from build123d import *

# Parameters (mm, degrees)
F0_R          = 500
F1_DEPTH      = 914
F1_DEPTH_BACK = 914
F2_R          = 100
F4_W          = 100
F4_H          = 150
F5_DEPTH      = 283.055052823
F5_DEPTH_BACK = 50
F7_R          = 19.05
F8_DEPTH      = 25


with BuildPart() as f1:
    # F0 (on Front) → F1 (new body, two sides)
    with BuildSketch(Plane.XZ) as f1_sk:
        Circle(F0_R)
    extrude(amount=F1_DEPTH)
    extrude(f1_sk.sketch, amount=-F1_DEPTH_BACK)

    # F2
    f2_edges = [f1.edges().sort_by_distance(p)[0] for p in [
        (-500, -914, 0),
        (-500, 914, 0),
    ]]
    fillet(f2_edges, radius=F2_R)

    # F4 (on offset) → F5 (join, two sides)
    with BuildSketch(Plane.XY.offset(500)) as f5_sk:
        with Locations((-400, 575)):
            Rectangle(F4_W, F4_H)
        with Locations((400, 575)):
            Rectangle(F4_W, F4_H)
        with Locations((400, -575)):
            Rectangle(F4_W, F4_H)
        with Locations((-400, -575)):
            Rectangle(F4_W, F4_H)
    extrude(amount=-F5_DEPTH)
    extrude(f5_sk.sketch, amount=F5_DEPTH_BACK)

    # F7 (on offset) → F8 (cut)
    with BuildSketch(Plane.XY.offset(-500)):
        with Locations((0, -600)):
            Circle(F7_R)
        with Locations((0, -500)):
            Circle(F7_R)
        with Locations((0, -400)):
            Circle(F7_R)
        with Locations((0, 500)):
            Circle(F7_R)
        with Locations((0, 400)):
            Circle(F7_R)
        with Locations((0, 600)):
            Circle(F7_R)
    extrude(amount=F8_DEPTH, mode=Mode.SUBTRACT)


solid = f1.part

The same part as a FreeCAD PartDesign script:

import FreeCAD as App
import Part
import Sketcher
from FreeCAD import Vector
Q = App.Units.Quantity


def edges_at(feature, points):
    """Names of the edges that pass closest to the given points."""
    edges = feature.Shape.Edges
    near = lambda p: min(range(len(edges)), key=lambda i: edges[i].distToShape(Part.Vertex(*p))[0])
    return sorted({f"Edge{near(p) + 1}" for p in points})


def add_polygon(sketch, points):
    """Adds a closed chain of lines whose ends are joined by coincident constraints."""
    first, n = sketch.GeometryCount, len(points)
    for a, b in zip(points, points[1:] + points[:1]):
        sketch.addGeometry(Part.LineSegment(App.Vector(*a, 0), App.Vector(*b, 0)), False)
    for i in range(n):
        sketch.addConstraint(Sketcher.Constraint("Coincident", first + i, 2, first + (i + 1) % n, 1))

doc = App.newDocument("Part")
body = doc.addObject("PartDesign::Body", "Body")

# Sketch on XZ plane
sketch1 = body.newObject("Sketcher::SketchObject", "Sketch")
sketch1.AttachmentSupport = (doc.getObject("XZ_Plane"), [""])
sketch1.MapMode = "FlatFace"
sketch1.addGeometry(Part.Circle(Vector(0, 0, 0), Vector(0, 0, 1), 500), False)
sketch1.addConstraint([
    Sketcher.Constraint("Coincident", 0, 3, -1, 1),
    Sketcher.Constraint("Diameter", 0, Q("1000 mm")),
])
pad1 = body.newObject("PartDesign::Pad", "Pad")
pad1.Profile = sketch1
pad1.Type = "TwoLengths"
pad1.Length = 914
pad1.Length2 = 914
doc.recompute()

fillet = body.newObject("PartDesign::Fillet", "Fillet")
fillet.Base = (pad1, edges_at(pad1, [(-500, -914, 0), (-500, 914, 0)]))
fillet.Radius = 100

# Sketch on XY plane
sketch2 = body.newObject("Sketcher::SketchObject", "Sketch001")
sketch2.AttachmentSupport = (doc.getObject("XY_Plane"), [""])
sketch2.MapMode = "FlatFace"
sketch2.AttachmentOffset = App.Placement(Vector(0, 0, 500), App.Rotation())
add_polygon(sketch2, [(-450, 650), (-450, 500), (-350, 500), (-350, 650)])  # lines 0-3
add_polygon(sketch2, [(350, 650), (350, 500), (450, 500), (450, 650)])  # lines 4-7
add_polygon(sketch2, [(350, -500), (350, -650), (450, -650), (450, -500)])  # lines 8-11
add_polygon(sketch2, [(-450, -500), (-450, -650), (-350, -650), (-350, -500)])  # lines 12-15
sketch2.addConstraint([
    Sketcher.Constraint("Vertical", 0),
    Sketcher.Constraint("Horizontal", 1),
    Sketcher.Constraint("Vertical", 2),
    Sketcher.Constraint("Horizontal", 3),
    Sketcher.Constraint("Vertical", 4),
    Sketcher.Constraint("Horizontal", 5),
    Sketcher.Constraint("Vertical", 6),
    Sketcher.Constraint("Horizontal", 7),
    Sketcher.Constraint("Vertical", 8),
    Sketcher.Constraint("Horizontal", 9),
    Sketcher.Constraint("Vertical", 10),
    Sketcher.Constraint("Horizontal", 11),
    Sketcher.Constraint("Vertical", 12),
    Sketcher.Constraint("Horizontal", 13),
    Sketcher.Constraint("Vertical", 14),
    Sketcher.Constraint("Horizontal", 15),
    Sketcher.Constraint("Symmetric", 2, 2, 8, 2, -1, 1),
    Sketcher.Constraint("Symmetric", 0, 2, 10, 2, -1, 1),
    Sketcher.Constraint("Symmetric", 6, 2, 12, 2, -1, 1),
    Sketcher.Constraint("Symmetric", 4, 2, 14, 2, -1, 1),
    Sketcher.Constraint("Symmetric", 1, 2, 4, 2, -2),
    Sketcher.Constraint("Symmetric", 3, 2, 6, 2, -2),
    Sketcher.Constraint("DistanceX", 1, 1, 1, 2, Q("100 mm")),
    Sketcher.Constraint("DistanceY", 0, 2, 0, 1, Q("150 mm")),
    Sketcher.Constraint("DistanceX", 0, 2, -1, 1, Q("450 mm")),
    Sketcher.Constraint("DistanceY", -1, 1, 0, 2, Q("500 mm")),
])
pad2 = body.newObject("PartDesign::Pad", "Pad001")
pad2.Profile = sketch2
pad2.Type = "TwoLengths"
pad2.Length = 283.055053
pad2.Length2 = 50
pad2.Reversed = True

# Sketch on XY plane
sketch3 = body.newObject("Sketcher::SketchObject", "Sketch002")
sketch3.AttachmentSupport = (doc.getObject("XY_Plane"), [""])
sketch3.MapMode = "FlatFace"
sketch3.AttachmentOffset = App.Placement(Vector(0, 0, -500), App.Rotation())
sketch3.addGeometry([
    Part.Circle(Vector(0, -600, 0), Vector(0, 0, 1), 19.05),  # 0
    Part.Circle(Vector(0, -500, 0), Vector(0, 0, 1), 19.05),  # 1
    Part.Circle(Vector(0, -400, 0), Vector(0, 0, 1), 19.05),  # 2
    Part.Circle(Vector(0, 500, 0), Vector(0, 0, 1), 19.05),  # 3
    Part.Circle(Vector(0, 400, 0), Vector(0, 0, 1), 19.05),  # 4
    Part.Circle(Vector(0, 600, 0), Vector(0, 0, 1), 19.05),  # 5
], False)
sketch3.addConstraint([
    Sketcher.Constraint("Equal", 0, 1),
    Sketcher.Constraint("Equal", 1, 2),
    Sketcher.Constraint("Equal", 2, 3),
    Sketcher.Constraint("Equal", 3, 4),
    Sketcher.Constraint("Equal", 4, 5),
    Sketcher.Constraint("Symmetric", 1, 3, 3, 3, -1, 1),
    Sketcher.Constraint("Symmetric", 2, 3, 4, 3, -1, 1),
    Sketcher.Constraint("Symmetric", 0, 3, 5, 3, -1, 1),
    Sketcher.Constraint("PointOnObject", 0, 3, -2),
    Sketcher.Constraint("PointOnObject", 1, 3, -2),
    Sketcher.Constraint("PointOnObject", 2, 3, -2),
    Sketcher.Constraint("Diameter", 0, Q("38.1 mm")),
    Sketcher.Constraint("DistanceY", 0, 3, -1, 1, Q("600 mm")),
    Sketcher.Constraint("DistanceY", 1, 3, -1, 1, Q("500 mm")),
    Sketcher.Constraint("DistanceY", 2, 3, -1, 1, Q("400 mm")),
])
pocket1 = body.newObject("PartDesign::Pocket", "Pocket")
pocket1.Profile = sketch3
pocket1.Length = 25
pocket1.Reversed = True

doc.recompute()
